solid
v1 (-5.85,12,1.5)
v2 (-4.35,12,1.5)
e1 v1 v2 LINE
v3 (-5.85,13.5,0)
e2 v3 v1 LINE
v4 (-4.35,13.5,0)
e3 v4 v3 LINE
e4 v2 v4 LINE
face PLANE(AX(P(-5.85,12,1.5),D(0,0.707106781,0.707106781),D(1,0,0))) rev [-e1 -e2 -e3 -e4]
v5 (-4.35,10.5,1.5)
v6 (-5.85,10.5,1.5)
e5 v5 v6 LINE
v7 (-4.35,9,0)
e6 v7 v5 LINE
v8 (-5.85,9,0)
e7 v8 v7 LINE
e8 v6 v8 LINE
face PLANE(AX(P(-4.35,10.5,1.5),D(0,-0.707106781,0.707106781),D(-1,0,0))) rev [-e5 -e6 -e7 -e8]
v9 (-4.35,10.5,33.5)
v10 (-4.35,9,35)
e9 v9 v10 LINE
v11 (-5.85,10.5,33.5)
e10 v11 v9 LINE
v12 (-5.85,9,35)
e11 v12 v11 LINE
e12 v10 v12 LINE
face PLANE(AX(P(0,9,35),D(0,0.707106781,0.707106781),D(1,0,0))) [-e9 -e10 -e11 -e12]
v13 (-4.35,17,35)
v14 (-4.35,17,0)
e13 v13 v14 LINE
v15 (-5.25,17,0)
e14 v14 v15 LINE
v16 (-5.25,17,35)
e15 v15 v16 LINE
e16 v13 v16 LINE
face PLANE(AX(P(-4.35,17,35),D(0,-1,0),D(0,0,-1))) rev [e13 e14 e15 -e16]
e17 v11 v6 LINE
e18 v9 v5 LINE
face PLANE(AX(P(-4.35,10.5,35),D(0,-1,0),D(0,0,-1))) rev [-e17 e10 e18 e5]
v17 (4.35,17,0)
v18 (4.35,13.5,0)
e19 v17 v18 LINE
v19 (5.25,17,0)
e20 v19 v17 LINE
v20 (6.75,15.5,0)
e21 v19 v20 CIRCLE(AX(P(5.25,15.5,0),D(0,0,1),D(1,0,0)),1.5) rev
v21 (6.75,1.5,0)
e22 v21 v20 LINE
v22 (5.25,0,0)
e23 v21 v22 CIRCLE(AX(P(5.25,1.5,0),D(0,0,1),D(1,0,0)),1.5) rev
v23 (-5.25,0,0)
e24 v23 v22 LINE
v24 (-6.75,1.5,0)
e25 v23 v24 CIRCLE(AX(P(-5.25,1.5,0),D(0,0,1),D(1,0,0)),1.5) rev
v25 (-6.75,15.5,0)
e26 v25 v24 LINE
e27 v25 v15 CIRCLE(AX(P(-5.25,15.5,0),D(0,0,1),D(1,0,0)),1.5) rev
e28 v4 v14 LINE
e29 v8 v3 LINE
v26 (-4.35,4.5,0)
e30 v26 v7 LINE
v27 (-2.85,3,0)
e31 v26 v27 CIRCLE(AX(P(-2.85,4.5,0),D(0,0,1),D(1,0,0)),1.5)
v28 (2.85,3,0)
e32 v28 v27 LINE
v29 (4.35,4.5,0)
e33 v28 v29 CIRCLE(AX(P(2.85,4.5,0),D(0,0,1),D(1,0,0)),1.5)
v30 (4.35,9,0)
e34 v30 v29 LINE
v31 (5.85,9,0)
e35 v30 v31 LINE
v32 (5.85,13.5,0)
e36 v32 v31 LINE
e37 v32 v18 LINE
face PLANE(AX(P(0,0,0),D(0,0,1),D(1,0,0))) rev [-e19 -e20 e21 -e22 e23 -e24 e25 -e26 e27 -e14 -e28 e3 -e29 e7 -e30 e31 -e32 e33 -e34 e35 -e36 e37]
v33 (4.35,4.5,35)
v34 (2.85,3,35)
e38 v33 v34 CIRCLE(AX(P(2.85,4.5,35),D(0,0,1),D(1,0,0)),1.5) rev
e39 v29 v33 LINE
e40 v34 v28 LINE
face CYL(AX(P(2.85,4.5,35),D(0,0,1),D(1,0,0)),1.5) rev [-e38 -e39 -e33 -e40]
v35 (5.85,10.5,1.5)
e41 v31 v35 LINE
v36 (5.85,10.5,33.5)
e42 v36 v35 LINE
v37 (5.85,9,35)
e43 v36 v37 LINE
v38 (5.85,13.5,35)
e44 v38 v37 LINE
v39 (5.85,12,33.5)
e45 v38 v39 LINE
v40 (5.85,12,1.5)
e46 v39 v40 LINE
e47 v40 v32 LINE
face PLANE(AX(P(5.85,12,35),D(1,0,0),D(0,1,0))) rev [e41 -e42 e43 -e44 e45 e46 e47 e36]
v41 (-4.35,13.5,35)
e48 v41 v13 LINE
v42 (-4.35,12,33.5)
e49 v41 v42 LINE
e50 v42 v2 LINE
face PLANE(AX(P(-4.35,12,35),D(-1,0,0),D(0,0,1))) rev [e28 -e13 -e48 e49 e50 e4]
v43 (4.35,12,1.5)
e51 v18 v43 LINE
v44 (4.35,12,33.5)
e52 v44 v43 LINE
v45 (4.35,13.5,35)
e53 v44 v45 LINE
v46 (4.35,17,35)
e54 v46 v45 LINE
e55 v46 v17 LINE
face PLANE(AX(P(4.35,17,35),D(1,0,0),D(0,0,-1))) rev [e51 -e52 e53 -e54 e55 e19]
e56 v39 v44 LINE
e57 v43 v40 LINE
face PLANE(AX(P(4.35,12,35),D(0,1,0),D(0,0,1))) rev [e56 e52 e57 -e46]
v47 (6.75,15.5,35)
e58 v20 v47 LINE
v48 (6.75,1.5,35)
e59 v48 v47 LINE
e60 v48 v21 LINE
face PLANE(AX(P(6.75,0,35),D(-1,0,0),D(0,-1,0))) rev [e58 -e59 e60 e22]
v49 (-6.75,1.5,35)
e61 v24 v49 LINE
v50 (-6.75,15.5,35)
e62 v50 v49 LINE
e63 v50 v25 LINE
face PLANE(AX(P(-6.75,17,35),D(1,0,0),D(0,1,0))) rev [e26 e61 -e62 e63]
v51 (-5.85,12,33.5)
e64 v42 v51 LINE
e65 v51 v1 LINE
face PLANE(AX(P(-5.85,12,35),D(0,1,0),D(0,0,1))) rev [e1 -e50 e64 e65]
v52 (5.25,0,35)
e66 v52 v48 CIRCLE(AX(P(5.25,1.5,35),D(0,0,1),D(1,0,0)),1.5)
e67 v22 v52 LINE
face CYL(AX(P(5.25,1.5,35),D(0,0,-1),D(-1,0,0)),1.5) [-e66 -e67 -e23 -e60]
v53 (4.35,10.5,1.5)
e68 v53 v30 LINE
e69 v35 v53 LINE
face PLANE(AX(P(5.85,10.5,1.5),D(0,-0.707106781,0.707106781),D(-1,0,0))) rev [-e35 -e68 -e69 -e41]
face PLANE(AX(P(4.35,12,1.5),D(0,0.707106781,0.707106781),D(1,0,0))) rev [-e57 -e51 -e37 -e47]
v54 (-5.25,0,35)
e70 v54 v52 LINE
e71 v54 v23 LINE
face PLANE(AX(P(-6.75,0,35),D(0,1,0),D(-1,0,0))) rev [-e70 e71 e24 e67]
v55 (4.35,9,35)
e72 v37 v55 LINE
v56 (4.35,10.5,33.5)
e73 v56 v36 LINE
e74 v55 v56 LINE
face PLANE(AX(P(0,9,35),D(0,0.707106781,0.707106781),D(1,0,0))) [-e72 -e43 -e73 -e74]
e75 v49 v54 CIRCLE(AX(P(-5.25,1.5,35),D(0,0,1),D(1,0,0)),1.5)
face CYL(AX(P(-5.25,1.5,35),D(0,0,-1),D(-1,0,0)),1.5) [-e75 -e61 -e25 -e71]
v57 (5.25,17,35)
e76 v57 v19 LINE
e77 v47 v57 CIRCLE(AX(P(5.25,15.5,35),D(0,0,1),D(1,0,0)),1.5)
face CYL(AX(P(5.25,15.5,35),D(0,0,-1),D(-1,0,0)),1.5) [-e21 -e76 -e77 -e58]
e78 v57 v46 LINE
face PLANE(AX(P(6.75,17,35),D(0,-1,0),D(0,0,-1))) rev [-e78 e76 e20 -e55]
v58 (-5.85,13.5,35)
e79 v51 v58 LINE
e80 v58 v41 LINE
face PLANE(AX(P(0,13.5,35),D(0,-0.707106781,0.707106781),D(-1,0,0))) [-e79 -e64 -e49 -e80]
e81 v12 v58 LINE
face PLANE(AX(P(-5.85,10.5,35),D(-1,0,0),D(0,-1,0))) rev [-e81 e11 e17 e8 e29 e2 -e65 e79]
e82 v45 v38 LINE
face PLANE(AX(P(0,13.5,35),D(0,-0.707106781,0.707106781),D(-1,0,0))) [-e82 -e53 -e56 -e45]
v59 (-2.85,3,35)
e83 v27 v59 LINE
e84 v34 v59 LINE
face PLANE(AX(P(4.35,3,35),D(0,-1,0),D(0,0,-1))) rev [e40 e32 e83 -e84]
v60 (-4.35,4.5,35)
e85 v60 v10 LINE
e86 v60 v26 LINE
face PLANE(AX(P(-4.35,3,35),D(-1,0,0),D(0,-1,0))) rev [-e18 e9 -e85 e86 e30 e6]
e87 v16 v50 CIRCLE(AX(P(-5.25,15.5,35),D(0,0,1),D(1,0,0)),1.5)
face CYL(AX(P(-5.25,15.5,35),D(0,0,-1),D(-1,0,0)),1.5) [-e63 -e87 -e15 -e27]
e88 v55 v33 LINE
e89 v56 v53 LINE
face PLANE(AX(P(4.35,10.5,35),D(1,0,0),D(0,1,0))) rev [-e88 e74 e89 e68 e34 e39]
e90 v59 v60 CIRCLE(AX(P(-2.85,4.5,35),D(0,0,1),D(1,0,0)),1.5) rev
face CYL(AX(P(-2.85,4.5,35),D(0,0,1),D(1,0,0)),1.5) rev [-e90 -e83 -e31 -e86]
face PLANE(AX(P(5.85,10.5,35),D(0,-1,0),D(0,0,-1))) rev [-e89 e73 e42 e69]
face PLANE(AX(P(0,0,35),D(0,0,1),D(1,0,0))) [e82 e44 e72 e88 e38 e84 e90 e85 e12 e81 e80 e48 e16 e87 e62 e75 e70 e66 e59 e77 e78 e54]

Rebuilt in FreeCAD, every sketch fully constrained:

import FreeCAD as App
import Part
import Sketcher
from FreeCAD import Vector
Q = App.Units.Quantity


def edges_at(feature, points):
    """Names of the edges that pass closest to the given points."""
    edges = feature.Shape.Edges
    near = lambda p: min(range(len(edges)), key=lambda i: edges[i].distToShape(Part.Vertex(*p))[0])
    return sorted({f"Edge{near(p) + 1}" for p in points})

doc = App.newDocument("Part")
body = doc.addObject("PartDesign::Body", "Body")

sketch1 = body.newObject("Sketcher::SketchObject", "Sketch")
sketch1.AttachmentSupport = (doc.getObject("XY_Plane"), [""])
sketch1.MapMode = "FlatFace"
sketch1.addGeometry([
    Part.LineSegment(Vector(-6.75, 0, 0), Vector(6.75, 0, 0)),
    Part.LineSegment(Vector(6.75, 0, 0), Vector(6.75, 17, 0)),
    Part.LineSegment(Vector(6.75, 17, 0), Vector(4.35, 17, 0)),
    Part.LineSegment(Vector(4.35, 17, 0), Vector(4.35, 12, 0)),
    Part.LineSegment(Vector(4.35, 12, 0), Vector(5.85, 12, 0)),
    Part.LineSegment(Vector(5.85, 12, 0), Vector(5.85, 10.5, 0)),
    Part.LineSegment(Vector(5.85, 10.5, 0), Vector(4.35, 10.5, 0)),
    Part.LineSegment(Vector(4.35, 10.5, 0), Vector(4.35, 3, 0)),
    Part.LineSegment(Vector(4.35, 3, 0), Vector(-4.35, 3, 0)),
    Part.LineSegment(Vector(-4.35, 3, 0), Vector(-4.35, 10.5, 0)),
    Part.LineSegment(Vector(-4.35, 10.5, 0), Vector(-5.85, 10.5, 0)),
    Part.LineSegment(Vector(-5.85, 10.5, 0), Vector(-5.85, 12, 0)),
    Part.LineSegment(Vector(-5.85, 12, 0), Vector(-4.35, 12, 0)),
    Part.LineSegment(Vector(-4.35, 12, 0), Vector(-4.35, 17, 0)),
    Part.LineSegment(Vector(-4.35, 17, 0), Vector(-6.75, 17, 0)),
    Part.LineSegment(Vector(-6.75, 17, 0), Vector(-6.75, 0, 0)),
], False)
sketch1.addConstraint([
    Sketcher.Constraint("Coincident", 0, 2, 1, 1),
    Sketcher.Constraint("Coincident", 1, 2, 2, 1),
    Sketcher.Constraint("Coincident", 2, 2, 3, 1),
    Sketcher.Constraint("Coincident", 3, 2, 4, 1),
    Sketcher.Constraint("Coincident", 4, 2, 5, 1),
    Sketcher.Constraint("Coincident", 5, 2, 6, 1),
    Sketcher.Constraint("Coincident", 6, 2, 7, 1),
    Sketcher.Constraint("Coincident", 7, 2, 8, 1),
    Sketcher.Constraint("Coincident", 8, 2, 9, 1),
    Sketcher.Constraint("Coincident", 9, 2, 10, 1),
    Sketcher.Constraint("Coincident", 10, 2, 11, 1),
    Sketcher.Constraint("Coincident", 11, 2, 12, 1),
    Sketcher.Constraint("Coincident", 12, 2, 13, 1),
    Sketcher.Constraint("Coincident", 13, 2, 14, 1),
    Sketcher.Constraint("Coincident", 14, 2, 15, 1),
    Sketcher.Constraint("Coincident", 15, 2, 0, 1),
    Sketcher.Constraint("Horizontal", 0),
    Sketcher.Constraint("Vertical", 1),
    Sketcher.Constraint("Horizontal", 2),
    Sketcher.Constraint("Vertical", 3),
    Sketcher.Constraint("Horizontal", 4),
    Sketcher.Constraint("Vertical", 5),
    Sketcher.Constraint("Horizontal", 6),
    Sketcher.Constraint("Vertical", 7),
    Sketcher.Constraint("Horizontal", 8),
    Sketcher.Constraint("Vertical", 9),
    Sketcher.Constraint("Horizontal", 10),
    Sketcher.Constraint("Vertical", 11),
    Sketcher.Constraint("Horizontal", 12),
    Sketcher.Constraint("Vertical", 13),
    Sketcher.Constraint("Horizontal", 14),
    Sketcher.Constraint("Vertical", 15),
    Sketcher.Constraint("Symmetric", 0, 2, 15, 2, -1, 1),
    Sketcher.Constraint("Symmetric", 6, 2, 9, 2, -2),
    Sketcher.Constraint("Symmetric", 4, 2, 11, 2, -2),
    Sketcher.Constraint("Symmetric", 2, 2, 13, 2, -2),
    Sketcher.Constraint("Vertical", 3, 2, 6, 2),
    Sketcher.Constraint("Equal", 12, 5),
    Sketcher.Constraint("DistanceY", 1, 1, 1, 2, Q("17 mm")),
    Sketcher.Constraint("DistanceY", 3, 2, 3, 1, Q("5 mm")),
    Sketcher.Constraint("DistanceX", 0, 1, 0, 2, Q("13.5 mm")),
    Sketcher.Constraint("DistanceX", 2, 2, 2, 1, Q("2.4 mm")),
    Sketcher.Constraint("DistanceX", 4, 1, 4, 2, Q("1.5 mm")),
    Sketcher.Constraint("DistanceY", 7, 2, 7, 1, Q("7.5 mm")),
])
pad1 = body.newObject("PartDesign::Pad", "Pad")
pad1.Profile = sketch1
pad1.Length = 35
doc.recompute()

fillet = body.newObject("PartDesign::Fillet", "Fillet")
fillet.Base = (pad1, edges_at(pad1, [
    (6.75, 0, 17.5),
    (-6.75, 0, 17.5),
    (-6.75, 17, 17.5),
    (-4.35, 3, 17.5),
    (4.35, 3, 17.5),
    (6.75, 17, 17.5),
]))
fillet.Radius = 1.5
doc.recompute()

chamfer = body.newObject("PartDesign::Chamfer", "Chamfer")
chamfer.Base = (fillet, edges_at(fillet, [
    (5.1, 12, 35),
    (-5.1, 12, 0),
    (-5.1, 10.5, 0),
    (5.1, 10.5, 0),
    (5.1, 12, 0),
    (5.1, 10.5, 35),
    (-5.1, 10.5, 35),
    (-5.1, 12, 35),
]))
chamfer.Size = 1.5

doc.recompute()
